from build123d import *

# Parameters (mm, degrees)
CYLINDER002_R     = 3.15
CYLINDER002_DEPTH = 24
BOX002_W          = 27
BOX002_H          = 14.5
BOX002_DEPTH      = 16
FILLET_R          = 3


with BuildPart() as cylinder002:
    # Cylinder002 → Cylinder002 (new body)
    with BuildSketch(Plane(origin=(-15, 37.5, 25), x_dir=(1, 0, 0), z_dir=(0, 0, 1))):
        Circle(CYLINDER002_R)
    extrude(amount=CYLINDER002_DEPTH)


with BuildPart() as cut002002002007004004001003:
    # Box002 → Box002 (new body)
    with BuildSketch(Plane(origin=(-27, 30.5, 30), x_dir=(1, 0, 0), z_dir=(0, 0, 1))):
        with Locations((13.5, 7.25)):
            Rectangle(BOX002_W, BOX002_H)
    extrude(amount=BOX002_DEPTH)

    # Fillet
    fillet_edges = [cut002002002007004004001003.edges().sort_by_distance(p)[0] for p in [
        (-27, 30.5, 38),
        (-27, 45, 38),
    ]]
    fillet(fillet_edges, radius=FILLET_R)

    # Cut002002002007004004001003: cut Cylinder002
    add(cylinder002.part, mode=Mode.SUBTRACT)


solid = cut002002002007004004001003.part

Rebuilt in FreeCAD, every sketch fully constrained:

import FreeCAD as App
import Part
import Sketcher


def edges_at(feature, points):
    """Names of the edges that pass closest to the given points."""
    edges = feature.Shape.Edges
    near = lambda p: min(range(len(edges)), key=lambda i: edges[i].distToShape(Part.Vertex(*p))[0])
    return sorted({f"Edge{near(p) + 1}" for p in points})

doc = App.newDocument("Part")
body = doc.addObject("PartDesign::Body", "Body")

# Sketch on XY plane
sketch1 = body.newObject("Sketcher::SketchObject", "Sketch")
sketch1.AttachmentSupport = (doc.getObject("XY_Plane"), [""])
sketch1.MapMode = "FlatFace"
sketch1.AttachmentOffset = App.Placement(App.Vector(0, 0, 25), App.Rotation())
sketch1.addGeometry(Part.Circle(App.Vector(-15, 37.5, 0), App.Vector(0, 0, 1), 3.15), False)
sketch1.addConstraint([
    Sketcher.Constraint("Diameter", 0, 6.3),
    Sketcher.Constraint("DistanceX", 0, 3, -1, 1, 15.0),
    Sketcher.Constraint("DistanceY", -1, 1, 0, 3, 37.5),
])
pad1 = body.newObject("PartDesign::Pad", "Pad")
pad1.Profile = sketch1
pad1.Length = 24
body2 = doc.addObject("PartDesign::Body", "Body001")

# Sketch on XY plane
sketch2 = body2.newObject("Sketcher::SketchObject", "Sketch001")
sketch2.AttachmentSupport = (doc.getObject("XY_Plane001"), [""])
sketch2.MapMode = "FlatFace"
sketch2.AttachmentOffset = App.Placement(App.Vector(0, 0, 30), App.Rotation())
sketch2.addGeometry([
    Part.LineSegment(App.Vector(-27, 45, 0), App.Vector(-27, 30.5, 0)),
    Part.LineSegment(App.Vector(-27, 30.5, 0), App.Vector(0, 30.5, 0)),
    Part.LineSegment(App.Vector(0, 30.5, 0), App.Vector(0, 45, 0)),
    Part.LineSegment(App.Vector(0, 45, 0), App.Vector(-27, 45, 0)),
], False)
sketch2.addConstraint([
    Sketcher.Constraint("Coincident", 0, 2, 1, 1),
    Sketcher.Constraint("Coincident", 1, 2, 2, 1),
    Sketcher.Constraint("Coincident", 2, 2, 3, 1),
    Sketcher.Constraint("Coincident", 3, 2, 0, 1),
    Sketcher.Constraint("Vertical", 0),
    Sketcher.Constraint("Horizontal", 1),
    Sketcher.Constraint("Vertical", 2),
    Sketcher.Constraint("Horizontal", 3),
    Sketcher.Constraint("PointOnObject", 1, 2, -2),
    Sketcher.Constraint("DistanceX", 1, 1, 1, 2, 27.0),
    Sketcher.Constraint("DistanceY", 0, 2, 0, 1, 14.5),
    Sketcher.Constraint("DistanceY", -1, 1, 2, 2, 45.0),
])
pad2 = body2.newObject("PartDesign::Pad", "Pad001")
pad2.Profile = sketch2
pad2.Length = 16
doc.recompute()

fillet = body2.newObject("PartDesign::Fillet", "Fillet")
fillet.Base = (pad2, edges_at(pad2, [(-27, 30.5, 38), (-27, 45, 38)]))
fillet.Radius = 3
doc.recompute()

boolean = body2.newObject("PartDesign::Boolean", "Boolean")
boolean.Type = "Cut"
boolean.addObjects([body])

doc.recompute()
